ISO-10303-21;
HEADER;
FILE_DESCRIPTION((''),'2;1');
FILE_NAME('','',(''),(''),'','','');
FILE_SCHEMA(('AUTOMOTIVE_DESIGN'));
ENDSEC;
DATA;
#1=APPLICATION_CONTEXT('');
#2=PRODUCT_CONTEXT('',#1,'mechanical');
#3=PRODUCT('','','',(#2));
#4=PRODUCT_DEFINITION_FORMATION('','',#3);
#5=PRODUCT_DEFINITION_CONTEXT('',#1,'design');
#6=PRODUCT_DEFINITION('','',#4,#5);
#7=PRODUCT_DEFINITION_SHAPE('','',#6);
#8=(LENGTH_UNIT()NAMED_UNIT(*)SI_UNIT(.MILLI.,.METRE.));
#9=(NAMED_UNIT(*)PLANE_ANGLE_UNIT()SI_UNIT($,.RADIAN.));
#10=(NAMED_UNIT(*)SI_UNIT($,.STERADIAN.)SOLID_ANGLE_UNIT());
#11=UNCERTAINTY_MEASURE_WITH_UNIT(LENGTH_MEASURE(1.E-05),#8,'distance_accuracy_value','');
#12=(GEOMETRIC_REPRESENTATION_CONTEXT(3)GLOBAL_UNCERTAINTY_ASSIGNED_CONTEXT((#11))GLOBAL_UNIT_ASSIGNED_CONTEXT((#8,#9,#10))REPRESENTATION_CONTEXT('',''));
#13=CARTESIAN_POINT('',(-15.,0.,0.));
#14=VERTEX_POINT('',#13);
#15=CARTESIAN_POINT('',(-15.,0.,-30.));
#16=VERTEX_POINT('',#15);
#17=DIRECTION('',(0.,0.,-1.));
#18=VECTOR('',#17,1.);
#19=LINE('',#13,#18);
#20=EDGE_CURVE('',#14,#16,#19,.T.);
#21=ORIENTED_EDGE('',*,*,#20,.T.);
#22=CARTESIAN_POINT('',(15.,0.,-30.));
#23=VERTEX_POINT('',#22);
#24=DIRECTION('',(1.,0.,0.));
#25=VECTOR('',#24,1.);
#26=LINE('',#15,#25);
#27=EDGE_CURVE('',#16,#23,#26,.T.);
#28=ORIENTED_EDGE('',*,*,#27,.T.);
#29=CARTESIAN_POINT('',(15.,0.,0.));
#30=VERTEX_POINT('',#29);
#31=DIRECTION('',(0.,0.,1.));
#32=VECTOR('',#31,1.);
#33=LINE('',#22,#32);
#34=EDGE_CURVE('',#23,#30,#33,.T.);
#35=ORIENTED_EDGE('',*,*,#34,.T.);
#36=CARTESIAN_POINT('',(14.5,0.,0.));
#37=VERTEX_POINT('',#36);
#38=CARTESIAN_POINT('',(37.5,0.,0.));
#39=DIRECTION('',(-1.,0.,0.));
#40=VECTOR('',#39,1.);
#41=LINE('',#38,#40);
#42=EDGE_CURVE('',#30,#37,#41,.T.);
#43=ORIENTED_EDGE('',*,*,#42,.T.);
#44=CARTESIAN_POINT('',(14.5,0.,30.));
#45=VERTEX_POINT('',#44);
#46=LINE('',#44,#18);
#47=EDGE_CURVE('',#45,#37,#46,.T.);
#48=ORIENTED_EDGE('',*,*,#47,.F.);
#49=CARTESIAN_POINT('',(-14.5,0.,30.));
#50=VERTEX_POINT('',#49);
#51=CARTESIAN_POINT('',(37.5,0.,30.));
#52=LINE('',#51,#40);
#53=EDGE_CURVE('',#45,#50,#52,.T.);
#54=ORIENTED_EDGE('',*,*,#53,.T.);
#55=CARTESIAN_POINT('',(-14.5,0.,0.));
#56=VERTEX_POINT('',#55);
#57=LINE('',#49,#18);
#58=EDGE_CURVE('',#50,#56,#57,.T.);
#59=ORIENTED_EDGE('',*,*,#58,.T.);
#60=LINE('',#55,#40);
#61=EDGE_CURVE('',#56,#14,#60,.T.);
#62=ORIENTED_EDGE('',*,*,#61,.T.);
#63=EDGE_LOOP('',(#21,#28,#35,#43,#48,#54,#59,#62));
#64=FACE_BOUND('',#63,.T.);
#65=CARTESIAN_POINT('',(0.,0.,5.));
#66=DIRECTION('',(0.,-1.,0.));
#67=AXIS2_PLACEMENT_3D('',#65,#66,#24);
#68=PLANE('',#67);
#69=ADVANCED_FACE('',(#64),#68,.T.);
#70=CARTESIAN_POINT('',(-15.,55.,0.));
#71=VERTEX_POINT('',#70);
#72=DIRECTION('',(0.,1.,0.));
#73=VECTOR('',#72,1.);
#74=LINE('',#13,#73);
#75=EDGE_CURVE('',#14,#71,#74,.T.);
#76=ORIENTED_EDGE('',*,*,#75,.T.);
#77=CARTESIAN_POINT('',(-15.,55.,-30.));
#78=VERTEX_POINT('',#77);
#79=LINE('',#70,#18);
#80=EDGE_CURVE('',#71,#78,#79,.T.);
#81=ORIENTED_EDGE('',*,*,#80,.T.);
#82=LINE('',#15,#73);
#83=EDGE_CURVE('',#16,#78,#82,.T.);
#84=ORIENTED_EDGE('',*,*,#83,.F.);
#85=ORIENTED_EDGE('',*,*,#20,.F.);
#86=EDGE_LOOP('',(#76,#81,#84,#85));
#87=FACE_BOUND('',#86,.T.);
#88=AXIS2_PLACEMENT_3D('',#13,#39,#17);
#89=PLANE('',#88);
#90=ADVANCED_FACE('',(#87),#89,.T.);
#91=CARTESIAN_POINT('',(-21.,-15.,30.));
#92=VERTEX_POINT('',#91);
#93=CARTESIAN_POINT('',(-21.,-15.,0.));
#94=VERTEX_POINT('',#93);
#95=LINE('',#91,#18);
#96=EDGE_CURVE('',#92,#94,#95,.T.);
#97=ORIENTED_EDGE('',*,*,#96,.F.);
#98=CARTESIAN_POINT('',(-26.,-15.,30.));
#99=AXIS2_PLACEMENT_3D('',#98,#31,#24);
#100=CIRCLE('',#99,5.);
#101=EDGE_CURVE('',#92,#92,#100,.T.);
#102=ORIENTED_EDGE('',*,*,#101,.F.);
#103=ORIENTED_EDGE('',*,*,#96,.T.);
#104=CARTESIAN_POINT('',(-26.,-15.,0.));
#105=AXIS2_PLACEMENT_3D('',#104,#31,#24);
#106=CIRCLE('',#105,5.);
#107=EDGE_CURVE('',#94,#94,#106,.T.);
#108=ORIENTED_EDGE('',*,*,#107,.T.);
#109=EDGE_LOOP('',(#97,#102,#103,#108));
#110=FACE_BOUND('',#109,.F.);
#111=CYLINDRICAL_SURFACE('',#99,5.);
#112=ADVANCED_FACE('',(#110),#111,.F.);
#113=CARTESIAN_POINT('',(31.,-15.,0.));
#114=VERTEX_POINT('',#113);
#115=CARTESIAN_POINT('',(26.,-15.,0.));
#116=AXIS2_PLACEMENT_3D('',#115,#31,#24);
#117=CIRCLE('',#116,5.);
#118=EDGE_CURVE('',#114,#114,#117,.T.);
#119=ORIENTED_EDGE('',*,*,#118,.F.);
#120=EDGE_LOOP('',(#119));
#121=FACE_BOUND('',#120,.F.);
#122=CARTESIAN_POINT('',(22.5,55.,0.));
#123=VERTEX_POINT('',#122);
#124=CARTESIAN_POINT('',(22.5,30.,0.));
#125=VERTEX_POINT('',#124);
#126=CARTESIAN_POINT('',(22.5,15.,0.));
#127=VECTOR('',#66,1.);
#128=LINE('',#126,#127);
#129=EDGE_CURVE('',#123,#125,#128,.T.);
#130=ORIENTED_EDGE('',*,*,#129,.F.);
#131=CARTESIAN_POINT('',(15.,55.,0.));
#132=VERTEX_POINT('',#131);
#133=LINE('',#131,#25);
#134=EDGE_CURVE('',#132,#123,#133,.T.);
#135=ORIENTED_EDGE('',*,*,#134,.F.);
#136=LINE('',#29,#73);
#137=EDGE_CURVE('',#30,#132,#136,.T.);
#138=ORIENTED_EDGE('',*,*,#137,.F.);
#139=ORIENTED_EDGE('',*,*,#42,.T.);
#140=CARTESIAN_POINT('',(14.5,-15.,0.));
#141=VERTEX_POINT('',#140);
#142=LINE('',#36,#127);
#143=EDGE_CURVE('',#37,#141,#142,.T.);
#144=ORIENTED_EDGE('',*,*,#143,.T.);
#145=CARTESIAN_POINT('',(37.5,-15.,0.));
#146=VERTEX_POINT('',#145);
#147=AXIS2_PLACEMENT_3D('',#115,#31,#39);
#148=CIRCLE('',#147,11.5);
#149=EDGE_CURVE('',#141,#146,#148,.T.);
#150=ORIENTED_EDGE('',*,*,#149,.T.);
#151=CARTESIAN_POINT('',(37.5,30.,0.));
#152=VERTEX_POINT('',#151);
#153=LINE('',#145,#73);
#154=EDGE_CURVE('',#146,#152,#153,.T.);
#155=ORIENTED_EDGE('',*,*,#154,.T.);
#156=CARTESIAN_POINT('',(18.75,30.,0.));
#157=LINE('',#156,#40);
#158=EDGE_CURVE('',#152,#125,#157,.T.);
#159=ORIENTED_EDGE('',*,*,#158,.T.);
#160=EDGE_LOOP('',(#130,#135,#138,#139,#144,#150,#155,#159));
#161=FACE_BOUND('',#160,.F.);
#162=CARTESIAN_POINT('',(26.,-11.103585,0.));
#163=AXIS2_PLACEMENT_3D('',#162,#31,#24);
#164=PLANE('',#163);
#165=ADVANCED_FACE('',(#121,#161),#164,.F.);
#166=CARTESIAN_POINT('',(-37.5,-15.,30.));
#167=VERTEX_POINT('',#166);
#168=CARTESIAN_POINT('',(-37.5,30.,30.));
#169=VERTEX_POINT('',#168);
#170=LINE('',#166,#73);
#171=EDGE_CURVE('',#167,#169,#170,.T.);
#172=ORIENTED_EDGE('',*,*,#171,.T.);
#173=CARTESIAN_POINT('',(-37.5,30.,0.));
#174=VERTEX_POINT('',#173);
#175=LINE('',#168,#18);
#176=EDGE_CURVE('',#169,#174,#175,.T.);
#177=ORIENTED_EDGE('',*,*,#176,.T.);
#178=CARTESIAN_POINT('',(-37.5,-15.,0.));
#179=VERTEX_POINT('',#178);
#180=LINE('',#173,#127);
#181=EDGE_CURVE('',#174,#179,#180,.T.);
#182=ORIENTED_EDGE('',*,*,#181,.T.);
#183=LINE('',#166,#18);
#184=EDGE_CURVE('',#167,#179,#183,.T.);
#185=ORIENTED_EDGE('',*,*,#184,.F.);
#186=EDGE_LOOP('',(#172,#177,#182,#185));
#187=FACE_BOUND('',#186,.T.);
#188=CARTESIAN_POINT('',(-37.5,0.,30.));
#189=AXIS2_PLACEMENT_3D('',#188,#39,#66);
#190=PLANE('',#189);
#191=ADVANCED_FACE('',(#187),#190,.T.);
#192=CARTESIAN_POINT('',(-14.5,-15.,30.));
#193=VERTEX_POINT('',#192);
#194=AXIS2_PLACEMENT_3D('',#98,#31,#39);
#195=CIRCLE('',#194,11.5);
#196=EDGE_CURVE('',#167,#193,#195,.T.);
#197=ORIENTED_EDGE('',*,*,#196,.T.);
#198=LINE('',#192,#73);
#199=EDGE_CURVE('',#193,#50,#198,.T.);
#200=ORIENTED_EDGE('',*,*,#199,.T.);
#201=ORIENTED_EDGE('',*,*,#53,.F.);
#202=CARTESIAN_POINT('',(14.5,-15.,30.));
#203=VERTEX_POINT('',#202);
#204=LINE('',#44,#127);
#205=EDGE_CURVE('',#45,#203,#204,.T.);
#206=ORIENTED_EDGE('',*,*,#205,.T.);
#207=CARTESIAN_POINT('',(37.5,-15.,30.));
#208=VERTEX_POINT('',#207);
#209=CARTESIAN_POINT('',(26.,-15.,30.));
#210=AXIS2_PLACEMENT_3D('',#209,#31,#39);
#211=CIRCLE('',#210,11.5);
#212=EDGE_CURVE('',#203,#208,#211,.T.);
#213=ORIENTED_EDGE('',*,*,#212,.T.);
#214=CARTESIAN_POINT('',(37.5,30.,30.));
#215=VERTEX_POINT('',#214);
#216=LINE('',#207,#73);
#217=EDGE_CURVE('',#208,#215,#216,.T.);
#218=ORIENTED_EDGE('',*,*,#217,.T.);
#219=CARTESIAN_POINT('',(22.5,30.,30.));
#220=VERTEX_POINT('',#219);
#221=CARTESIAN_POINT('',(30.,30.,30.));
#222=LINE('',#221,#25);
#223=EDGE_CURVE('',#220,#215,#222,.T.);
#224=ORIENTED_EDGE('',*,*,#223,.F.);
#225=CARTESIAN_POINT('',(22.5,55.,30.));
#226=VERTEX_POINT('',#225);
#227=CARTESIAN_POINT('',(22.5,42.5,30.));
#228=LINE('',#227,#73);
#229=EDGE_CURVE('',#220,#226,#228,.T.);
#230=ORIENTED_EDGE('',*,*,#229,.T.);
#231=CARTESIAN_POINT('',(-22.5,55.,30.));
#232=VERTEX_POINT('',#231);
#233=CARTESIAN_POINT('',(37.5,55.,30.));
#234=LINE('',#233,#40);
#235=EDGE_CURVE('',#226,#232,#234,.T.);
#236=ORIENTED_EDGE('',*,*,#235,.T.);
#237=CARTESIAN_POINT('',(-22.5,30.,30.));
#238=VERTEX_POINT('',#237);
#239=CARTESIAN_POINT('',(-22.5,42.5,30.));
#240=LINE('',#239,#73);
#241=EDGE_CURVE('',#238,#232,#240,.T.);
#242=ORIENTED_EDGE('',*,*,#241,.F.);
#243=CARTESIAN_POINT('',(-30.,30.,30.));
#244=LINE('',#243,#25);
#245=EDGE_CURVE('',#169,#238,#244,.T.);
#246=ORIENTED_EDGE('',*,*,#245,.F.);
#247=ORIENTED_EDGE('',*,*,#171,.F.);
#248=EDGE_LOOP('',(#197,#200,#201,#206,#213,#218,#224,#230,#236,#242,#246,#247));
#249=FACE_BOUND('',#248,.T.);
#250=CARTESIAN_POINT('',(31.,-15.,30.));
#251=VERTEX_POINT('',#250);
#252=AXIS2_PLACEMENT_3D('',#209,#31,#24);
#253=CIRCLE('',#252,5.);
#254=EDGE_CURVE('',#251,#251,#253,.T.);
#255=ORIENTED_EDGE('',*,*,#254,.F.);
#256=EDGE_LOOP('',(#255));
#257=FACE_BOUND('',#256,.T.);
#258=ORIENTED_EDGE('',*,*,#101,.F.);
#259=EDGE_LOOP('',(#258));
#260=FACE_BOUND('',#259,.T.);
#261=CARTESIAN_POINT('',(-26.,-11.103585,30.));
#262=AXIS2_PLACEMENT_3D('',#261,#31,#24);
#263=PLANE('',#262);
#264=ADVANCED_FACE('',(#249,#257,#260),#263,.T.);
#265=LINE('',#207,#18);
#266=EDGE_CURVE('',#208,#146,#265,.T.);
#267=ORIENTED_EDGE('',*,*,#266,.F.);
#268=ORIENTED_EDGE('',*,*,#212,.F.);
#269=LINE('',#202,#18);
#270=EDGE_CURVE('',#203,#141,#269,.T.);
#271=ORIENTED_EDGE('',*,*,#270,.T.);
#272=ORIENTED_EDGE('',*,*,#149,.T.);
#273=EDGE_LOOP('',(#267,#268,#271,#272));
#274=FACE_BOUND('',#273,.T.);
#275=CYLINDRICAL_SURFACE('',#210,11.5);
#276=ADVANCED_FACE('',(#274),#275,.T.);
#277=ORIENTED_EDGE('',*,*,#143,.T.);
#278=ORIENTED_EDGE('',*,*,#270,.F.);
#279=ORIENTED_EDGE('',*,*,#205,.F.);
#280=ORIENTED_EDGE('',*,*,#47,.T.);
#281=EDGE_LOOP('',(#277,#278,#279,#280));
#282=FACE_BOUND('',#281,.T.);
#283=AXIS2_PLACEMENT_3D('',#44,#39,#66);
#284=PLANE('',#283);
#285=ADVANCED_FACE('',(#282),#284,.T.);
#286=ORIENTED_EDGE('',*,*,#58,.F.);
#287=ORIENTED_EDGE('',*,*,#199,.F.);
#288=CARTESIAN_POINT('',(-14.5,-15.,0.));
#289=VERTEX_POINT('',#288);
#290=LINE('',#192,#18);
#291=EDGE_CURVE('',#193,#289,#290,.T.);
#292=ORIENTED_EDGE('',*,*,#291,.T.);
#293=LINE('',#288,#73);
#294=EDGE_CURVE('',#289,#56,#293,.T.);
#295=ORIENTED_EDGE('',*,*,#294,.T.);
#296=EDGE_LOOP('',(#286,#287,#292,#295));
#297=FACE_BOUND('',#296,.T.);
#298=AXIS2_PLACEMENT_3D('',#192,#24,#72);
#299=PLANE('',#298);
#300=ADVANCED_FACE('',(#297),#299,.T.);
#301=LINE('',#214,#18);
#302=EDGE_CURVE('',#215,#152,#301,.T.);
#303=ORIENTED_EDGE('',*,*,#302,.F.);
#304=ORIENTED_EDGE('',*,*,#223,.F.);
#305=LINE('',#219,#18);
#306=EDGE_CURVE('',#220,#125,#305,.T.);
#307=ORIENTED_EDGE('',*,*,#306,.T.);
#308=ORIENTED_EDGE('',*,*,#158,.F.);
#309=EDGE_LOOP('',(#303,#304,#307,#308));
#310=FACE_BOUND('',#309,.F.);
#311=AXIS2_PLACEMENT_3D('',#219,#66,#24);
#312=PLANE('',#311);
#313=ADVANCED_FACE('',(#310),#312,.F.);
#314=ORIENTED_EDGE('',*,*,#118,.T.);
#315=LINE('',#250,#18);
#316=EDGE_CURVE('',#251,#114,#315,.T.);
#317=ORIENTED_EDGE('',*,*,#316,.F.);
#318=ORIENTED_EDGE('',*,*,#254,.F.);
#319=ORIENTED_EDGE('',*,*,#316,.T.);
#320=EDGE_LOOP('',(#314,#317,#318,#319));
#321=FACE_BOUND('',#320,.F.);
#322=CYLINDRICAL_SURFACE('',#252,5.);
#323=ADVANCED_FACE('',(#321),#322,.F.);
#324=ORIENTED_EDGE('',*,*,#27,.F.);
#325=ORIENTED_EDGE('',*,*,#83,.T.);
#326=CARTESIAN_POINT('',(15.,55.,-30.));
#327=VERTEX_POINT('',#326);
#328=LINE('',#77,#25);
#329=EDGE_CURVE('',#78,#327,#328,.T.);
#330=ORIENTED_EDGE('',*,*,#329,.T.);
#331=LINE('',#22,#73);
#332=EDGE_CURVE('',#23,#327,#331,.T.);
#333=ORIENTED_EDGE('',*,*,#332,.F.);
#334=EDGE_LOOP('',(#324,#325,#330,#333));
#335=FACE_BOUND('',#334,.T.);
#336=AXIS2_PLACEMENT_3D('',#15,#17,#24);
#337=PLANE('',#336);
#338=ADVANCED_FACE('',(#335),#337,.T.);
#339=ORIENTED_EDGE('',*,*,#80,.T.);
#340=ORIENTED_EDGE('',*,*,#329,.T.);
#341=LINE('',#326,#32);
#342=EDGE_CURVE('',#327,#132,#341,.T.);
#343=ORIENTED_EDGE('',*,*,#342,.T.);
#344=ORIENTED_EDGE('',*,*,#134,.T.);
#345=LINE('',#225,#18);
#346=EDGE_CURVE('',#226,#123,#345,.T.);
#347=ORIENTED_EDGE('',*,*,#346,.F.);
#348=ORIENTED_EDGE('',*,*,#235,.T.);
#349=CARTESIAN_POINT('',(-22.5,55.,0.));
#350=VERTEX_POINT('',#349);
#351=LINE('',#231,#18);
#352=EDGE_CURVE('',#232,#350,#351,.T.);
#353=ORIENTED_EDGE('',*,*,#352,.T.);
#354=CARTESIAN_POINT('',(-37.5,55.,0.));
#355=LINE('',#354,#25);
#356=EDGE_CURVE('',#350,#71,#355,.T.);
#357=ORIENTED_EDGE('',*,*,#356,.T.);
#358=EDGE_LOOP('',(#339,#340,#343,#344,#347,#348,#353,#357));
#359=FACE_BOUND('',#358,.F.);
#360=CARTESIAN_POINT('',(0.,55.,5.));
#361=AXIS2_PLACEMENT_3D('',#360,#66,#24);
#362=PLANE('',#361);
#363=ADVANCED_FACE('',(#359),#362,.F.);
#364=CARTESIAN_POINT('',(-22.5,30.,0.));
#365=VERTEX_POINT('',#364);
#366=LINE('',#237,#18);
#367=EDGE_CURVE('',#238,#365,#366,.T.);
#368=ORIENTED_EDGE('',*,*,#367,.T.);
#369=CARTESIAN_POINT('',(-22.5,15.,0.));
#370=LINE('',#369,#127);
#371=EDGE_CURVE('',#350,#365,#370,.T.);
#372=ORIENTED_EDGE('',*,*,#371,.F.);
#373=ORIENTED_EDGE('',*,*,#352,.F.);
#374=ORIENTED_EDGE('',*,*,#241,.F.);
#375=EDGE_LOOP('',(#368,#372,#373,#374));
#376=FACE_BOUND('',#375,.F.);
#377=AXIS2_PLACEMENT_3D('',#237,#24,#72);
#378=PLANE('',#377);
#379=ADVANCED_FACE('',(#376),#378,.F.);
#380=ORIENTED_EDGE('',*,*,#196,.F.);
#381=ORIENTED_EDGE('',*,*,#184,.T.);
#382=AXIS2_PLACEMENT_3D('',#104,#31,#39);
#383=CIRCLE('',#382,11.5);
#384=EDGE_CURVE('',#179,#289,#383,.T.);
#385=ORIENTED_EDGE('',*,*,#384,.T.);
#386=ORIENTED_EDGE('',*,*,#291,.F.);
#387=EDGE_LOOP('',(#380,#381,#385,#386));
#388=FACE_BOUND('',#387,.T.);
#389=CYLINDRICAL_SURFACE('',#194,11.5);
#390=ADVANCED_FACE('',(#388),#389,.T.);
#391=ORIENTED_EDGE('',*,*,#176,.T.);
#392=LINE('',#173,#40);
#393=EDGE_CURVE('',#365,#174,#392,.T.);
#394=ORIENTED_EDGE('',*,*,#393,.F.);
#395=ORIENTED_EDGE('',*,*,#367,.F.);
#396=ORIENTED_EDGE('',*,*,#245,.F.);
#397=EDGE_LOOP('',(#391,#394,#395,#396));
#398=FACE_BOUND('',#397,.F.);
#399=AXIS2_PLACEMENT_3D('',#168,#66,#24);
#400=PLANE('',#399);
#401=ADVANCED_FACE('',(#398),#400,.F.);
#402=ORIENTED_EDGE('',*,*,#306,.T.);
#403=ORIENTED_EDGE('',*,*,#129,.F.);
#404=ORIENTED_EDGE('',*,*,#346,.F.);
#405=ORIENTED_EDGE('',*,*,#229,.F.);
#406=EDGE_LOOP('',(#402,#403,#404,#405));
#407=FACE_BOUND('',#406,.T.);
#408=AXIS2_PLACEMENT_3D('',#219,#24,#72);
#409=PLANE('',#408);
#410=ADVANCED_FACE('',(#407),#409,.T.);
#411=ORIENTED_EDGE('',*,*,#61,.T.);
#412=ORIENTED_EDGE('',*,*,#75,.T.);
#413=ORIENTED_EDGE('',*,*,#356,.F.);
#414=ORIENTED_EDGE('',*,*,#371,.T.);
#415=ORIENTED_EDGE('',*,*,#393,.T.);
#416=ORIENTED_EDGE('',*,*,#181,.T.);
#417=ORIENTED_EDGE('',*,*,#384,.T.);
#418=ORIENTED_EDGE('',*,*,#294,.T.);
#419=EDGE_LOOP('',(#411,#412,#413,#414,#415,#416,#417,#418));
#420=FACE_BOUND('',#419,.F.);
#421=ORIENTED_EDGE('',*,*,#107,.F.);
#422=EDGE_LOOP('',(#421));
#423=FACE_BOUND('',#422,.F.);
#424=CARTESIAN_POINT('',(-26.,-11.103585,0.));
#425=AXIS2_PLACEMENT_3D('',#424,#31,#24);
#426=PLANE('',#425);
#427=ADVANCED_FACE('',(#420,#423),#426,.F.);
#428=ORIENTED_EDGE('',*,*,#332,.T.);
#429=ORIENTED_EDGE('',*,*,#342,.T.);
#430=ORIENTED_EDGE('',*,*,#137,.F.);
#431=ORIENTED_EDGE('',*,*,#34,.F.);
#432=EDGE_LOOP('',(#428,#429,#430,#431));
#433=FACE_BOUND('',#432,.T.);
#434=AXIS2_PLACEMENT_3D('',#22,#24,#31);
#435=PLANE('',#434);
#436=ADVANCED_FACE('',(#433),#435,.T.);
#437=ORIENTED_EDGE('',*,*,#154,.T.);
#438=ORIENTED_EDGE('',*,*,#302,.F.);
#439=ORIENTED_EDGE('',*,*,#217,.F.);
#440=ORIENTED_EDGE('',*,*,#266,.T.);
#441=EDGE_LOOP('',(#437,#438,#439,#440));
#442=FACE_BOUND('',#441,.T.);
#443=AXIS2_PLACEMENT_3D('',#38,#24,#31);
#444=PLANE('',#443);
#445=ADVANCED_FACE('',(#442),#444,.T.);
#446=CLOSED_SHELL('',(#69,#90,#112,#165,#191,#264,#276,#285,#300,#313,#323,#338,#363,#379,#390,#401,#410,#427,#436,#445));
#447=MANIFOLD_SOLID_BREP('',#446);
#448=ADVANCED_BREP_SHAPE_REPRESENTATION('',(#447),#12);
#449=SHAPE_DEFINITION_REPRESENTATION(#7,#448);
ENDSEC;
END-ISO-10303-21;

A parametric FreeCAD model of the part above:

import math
import FreeCAD as App
import Part
import Sketcher
from FreeCAD import Vector


def add_polygon(sketch, points):
    """Adds a closed chain of lines whose ends are joined by coincident constraints."""
    first, n = sketch.GeometryCount, len(points)
    for a, b in zip(points, points[1:] + points[:1]):
        sketch.addGeometry(Part.LineSegment(App.Vector(*a, 0), App.Vector(*b, 0)), False)
    for i in range(n):
        sketch.addConstraint(Sketcher.Constraint("Coincident", first + i, 2, first + (i + 1) % n, 1))

doc = App.newDocument("Part")
body = doc.addObject("PartDesign::Body", "Body")

# Sketch on XZ plane
sketch1 = body.newObject("Sketcher::SketchObject", "Sketch")
sketch1.AttachmentSupport = (doc.getObject("XZ_Plane"), [""])
sketch1.MapMode = "FlatFace"
add_polygon(sketch1, [(38, 30), (-38, 30), (-38, 0), (-15, 0), (-15, -30), (15, -30), (15, 0), (38, 0)])  # lines 0-7
sketch1.addConstraint([
    Sketcher.Constraint("Horizontal", 0),
    Sketcher.Constraint("Vertical", 1),
    Sketcher.Constraint("Horizontal", 2),
    Sketcher.Constraint("Vertical", 3),
    Sketcher.Constraint("Horizontal", 4),
    Sketcher.Constraint("Vertical", 5),
    Sketcher.Constraint("Horizontal", 6),
    Sketcher.Constraint("Vertical", 7),
    Sketcher.Constraint("Symmetric", 2, 2, 5, 2, -1, 1),
    Sketcher.Constraint("Symmetric", 1, 2, 6, 2, -2),
    Sketcher.Constraint("Equal", 4, 1),
    Sketcher.Constraint("Equal", 1, 3),
    Sketcher.Constraint("DistanceX", 0, 2, 0, 1, 75.0),
    Sketcher.Constraint("DistanceX", 4, 1, 4, 2, 30.0),
])
pad1 = body.newObject("PartDesign::Pad", "Pad")
pad1.Profile = sketch1
pad1.Length = 55
pad1.Reversed = True

# Sketch on XY plane
sketch2 = body.newObject("Sketcher::SketchObject", "Sketch001")
sketch2.AttachmentSupport = (doc.getObject("XY_Plane"), [""])
sketch2.MapMode = "FlatFace"
sketch2.AttachmentOffset = App.Placement(Vector(0, 0, 30), App.Rotation())
add_polygon(sketch2, [(22, 55), (22, 30), (38, 30), (38, 55)])  # lines 0-3
add_polygon(sketch2, [(-38, 55), (-38, 30), (-22, 30), (-22, 55)])  # lines 4-7
sketch2.addConstraint([
    Sketcher.Constraint("Vertical", 0),
    Sketcher.Constraint("Horizontal", 1),
    Sketcher.Constraint("Vertical", 2),
    Sketcher.Constraint("Horizontal", 3),
    Sketcher.Constraint("Vertical", 4),
    Sketcher.Constraint("Horizontal", 5),
    Sketcher.Constraint("Vertical", 6),
    Sketcher.Constraint("Horizontal", 7),
    Sketcher.Constraint("Symmetric", 1, 2, 4, 2, -2),
    Sketcher.Constraint("Symmetric", 3, 2, 6, 2, -2),
    Sketcher.Constraint("DistanceX", 1, 1, 1, 2, 15.0),
    Sketcher.Constraint("DistanceY", 0, 2, 0, 1, 25.0),
    Sketcher.Constraint("DistanceY", -1, 1, 0, 2, 30.0),
    Sketcher.Constraint("DistanceX", 4, 2, 0, 2, 60.0),
])
pocket1 = body.newObject("PartDesign::Pocket", "Pocket")
pocket1.Profile = sketch2
pocket1.Length = 62

# Sketch on XY plane
sketch3 = body.newObject("Sketcher::SketchObject", "Sketch002")
sketch3.AttachmentSupport = (doc.getObject("XY_Plane"), [""])
sketch3.MapMode = "FlatFace"
sketch3.AttachmentOffset = App.Placement(Vector(0, 0, 30), App.Rotation())
sketch3.addGeometry([
    Part.LineSegment(Vector(-38, 0, 0), Vector(-38, -15, 0)),  # 0
    Part.ArcOfCircle(Part.Circle(Vector(-26, -15, 0), Vector(0, 0, 1), 12), math.radians(180), math.radians(360)),  # 1
    Part.LineSegment(Vector(-14, -15, 0), Vector(-14, 0, 0)),  # 2
    Part.LineSegment(Vector(-14, 0, 0), Vector(-38, 0, 0)),  # 3
    Part.Circle(Vector(-26, -15, 0), Vector(0, 0, 1), 5),  # 4
    Part.LineSegment(Vector(38, 0, 0), Vector(14, 0, 0)),  # 5
    Part.LineSegment(Vector(14, 0, 0), Vector(14, -15, 0)),  # 6
    Part.ArcOfCircle(Part.Circle(Vector(26, -15, 0), Vector(0, 0, 1), 12), math.radians(180), math.radians(360)),  # 7
    Part.LineSegment(Vector(38, -15, 0), Vector(38, 0, 0)),  # 8
    Part.Circle(Vector(26, -15, 0), Vector(0, 0, 1), 5),  # 9
], False)
sketch3.addConstraint([
    Sketcher.Constraint("Tangent", 0, 2, 1, 1),
    Sketcher.Constraint("Tangent", 1, 2, 2, 1),
    Sketcher.Constraint("Coincident", 2, 2, 3, 1),
    Sketcher.Constraint("Coincident", 3, 2, 0, 1),
    Sketcher.Constraint("Coincident", 5, 2, 6, 1),
    Sketcher.Constraint("Tangent", 6, 2, 7, 1),
    Sketcher.Constraint("Tangent", 7, 2, 8, 1),
    Sketcher.Constraint("Coincident", 8, 2, 5, 1),
    Sketcher.Constraint("Vertical", 0),
    Sketcher.Constraint("Vertical", 2),
    Sketcher.Constraint("Horizontal", 3),
    Sketcher.Constraint("Horizontal", 5),
    Sketcher.Constraint("Vertical", 6),
    Sketcher.Constraint("Vertical", 8),
    Sketcher.Constraint("Coincident", 4, 3, 1, 3),
    Sketcher.Constraint("Coincident", 9, 3, 7, 3),
    Sketcher.Constraint("Equal", 1, 7),
    Sketcher.Constraint("Equal", 4, 9),
    Sketcher.Constraint("Symmetric", 2, 2, 5, 2, -1, 1),
    Sketcher.Constraint("PointOnObject", 2, 2, -1),
    Sketcher.Constraint("Horizontal", 4, 3, 7, 3),
    Sketcher.Constraint("Diameter", 4, 10.0),
    Sketcher.Constraint("Radius", 1, 11.5),
    Sketcher.Constraint("DistanceY", 0, 2, 0, 1, 15.0),
    Sketcher.Constraint("DistanceX", 1, 3, -1, 1, 26.0),
])
pad2 = body.newObject("PartDesign::Pad", "Pad001")
pad2.Profile = sketch3
pad2.Length = 30
pad2.Reversed = True

doc.recompute()
